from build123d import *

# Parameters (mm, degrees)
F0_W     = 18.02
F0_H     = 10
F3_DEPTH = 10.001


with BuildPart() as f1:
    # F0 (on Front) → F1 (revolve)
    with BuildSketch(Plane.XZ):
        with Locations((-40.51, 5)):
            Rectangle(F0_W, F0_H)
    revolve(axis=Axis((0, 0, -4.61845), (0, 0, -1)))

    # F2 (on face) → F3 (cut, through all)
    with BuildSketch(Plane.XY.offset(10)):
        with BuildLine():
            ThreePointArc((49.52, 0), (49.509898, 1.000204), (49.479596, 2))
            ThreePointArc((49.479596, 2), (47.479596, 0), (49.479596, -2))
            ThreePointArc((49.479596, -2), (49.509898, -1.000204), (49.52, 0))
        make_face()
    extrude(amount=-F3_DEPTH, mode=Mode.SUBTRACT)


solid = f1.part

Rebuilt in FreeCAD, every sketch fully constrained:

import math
import FreeCAD as App
import Part
import Sketcher
from FreeCAD import Vector


def add_polygon(sketch, points):
    """Adds a closed chain of lines whose ends are joined by coincident constraints."""
    first, n = sketch.GeometryCount, len(points)
    for a, b in zip(points, points[1:] + points[:1]):
        sketch.addGeometry(Part.LineSegment(App.Vector(*a, 0), App.Vector(*b, 0)), False)
    for i in range(n):
        sketch.addConstraint(Sketcher.Constraint("Coincident", first + i, 2, first + (i + 1) % n, 1))

doc = App.newDocument("Part")
body = doc.addObject("PartDesign::Body", "Body")

# Sketch on XZ plane
sketch1 = body.newObject("Sketcher::SketchObject", "Sketch")
sketch1.AttachmentSupport = (doc.getObject("XZ_Plane"), [""])
sketch1.MapMode = "FlatFace"
add_polygon(sketch1, [(-49.52, 10), (-49.52, 0), (-31.5, 0), (-31.5, 10)])  # lines 0-3
sketch1.addConstraint([
    Sketcher.Constraint("Vertical", 0),
    Sketcher.Constraint("Horizontal", 1),
    Sketcher.Constraint("Vertical", 2),
    Sketcher.Constraint("Horizontal", 3),
    Sketcher.Constraint("PointOnObject", 0, 2, -1),
    Sketcher.Constraint("DistanceY", 0, 2, 0, 1, 10.0),
    Sketcher.Constraint("DistanceX", 1, 1, 1, 2, 18.02),
    Sketcher.Constraint("DistanceX", 1, 2, -1, 1, 31.5),
])
revolution = body.newObject("PartDesign::Revolution", "Revolution")
revolution.Profile = sketch1
revolution.ReferenceAxis = (sketch1, ["V_Axis"])
revolution.Angle = 360

# Sketch on XY plane
sketch2 = body.newObject("Sketcher::SketchObject", "Sketch001")
sketch2.AttachmentSupport = (doc.getObject("XY_Plane"), [""])
sketch2.MapMode = "FlatFace"
sketch2.AttachmentOffset = App.Placement(Vector(0, 0, 10), App.Rotation())
sketch2.addGeometry([
    Part.ArcOfCircle(Part.Circle(Vector(-0.000106, 0.000003, 0), Vector(0, 0, 1), 49.520106), math.radians(-0.000003), math.radians(2.314667)),
    Part.ArcOfCircle(Part.Circle(Vector(49.479596, 0, 0), Vector(0, 0, 1), 2), math.radians(90), math.radians(270)),
    Part.ArcOfCircle(Part.Circle(Vector(-0.000106, -0.000003, 0), Vector(0, 0, 1), 49.520106), math.radians(-2.314667), math.radians(0.000003)),
], False)
sketch2.addConstraint([
    Sketcher.Constraint("Coincident", 0, 2, 1, 1),
    Sketcher.Constraint("Coincident", 1, 2, 2, 1),
    Sketcher.Constraint("Tangent", 2, 2, 0, 1),
    Sketcher.Constraint("Equal", 0, 2),
    Sketcher.Constraint("Symmetric", 0, 2, 1, 2, -1),
    Sketcher.Constraint("PointOnObject", 2, 2, -1),
    Sketcher.Constraint("Vertical", 1, 3, 0, 2),
    Sketcher.Constraint("Radius", 1, 2.0),
    Sketcher.Constraint("DistanceX", -1, 1, 2, 2, 49.52),
    Sketcher.Constraint("Radius", 0, 49.520106),
])
pocket1 = body.newObject("PartDesign::Pocket", "Pocket")
pocket1.Profile = sketch2
pocket1.Type = "ThroughAll"

doc.recompute()
